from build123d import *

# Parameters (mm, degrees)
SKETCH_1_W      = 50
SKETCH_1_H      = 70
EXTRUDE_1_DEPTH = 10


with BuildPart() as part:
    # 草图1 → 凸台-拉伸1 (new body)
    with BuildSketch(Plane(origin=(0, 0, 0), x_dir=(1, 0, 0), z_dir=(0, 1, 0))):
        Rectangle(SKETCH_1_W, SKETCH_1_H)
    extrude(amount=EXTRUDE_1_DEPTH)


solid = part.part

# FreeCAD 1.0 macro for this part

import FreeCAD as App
import Part
import Sketcher

V = App.Vector

doc = App.newDocument("Part")
body = doc.addObject("PartDesign::Body", "Body")

# Sketch on XZ plane
sketch1 = body.newObject("Sketcher::SketchObject", "Sketch")
sketch1.AttachmentSupport = (doc.getObject("XZ_Plane"), [""])
sketch1.MapMode = "FlatFace"
sketch1.addGeometry(Part.LineSegment(V(-25, -35, 0), V(-25, 35, 0)), False)
sketch1.addGeometry(Part.LineSegment(V(-25, 35, 0), V(25, 35, 0)), False)
sketch1.addGeometry(Part.LineSegment(V(25, 35, 0), V(25, -35, 0)), False)
sketch1.addGeometry(Part.LineSegment(V(25, -35, 0), V(-25, -35, 0)), False)
sketch1.addConstraint(Sketcher.Constraint("Coincident", 0, 2, 1, 1))
sketch1.addConstraint(Sketcher.Constraint("Coincident", 1, 2, 2, 1))
sketch1.addConstraint(Sketcher.Constraint("Coincident", 2, 2, 3, 1))
sketch1.addConstraint(Sketcher.Constraint("Coincident", 3, 2, 0, 1))
sketch1.addConstraint(Sketcher.Constraint("Vertical", 0))
sketch1.addConstraint(Sketcher.Constraint("Horizontal", 1))
sketch1.addConstraint(Sketcher.Constraint("Vertical", 2))
sketch1.addConstraint(Sketcher.Constraint("Horizontal", 3))
sketch1.addConstraint(Sketcher.Constraint("Symmetric", 0, 2, 2, 2, -1, 1))
sketch1.addConstraint(Sketcher.Constraint("DistanceX", 1, 1, 1, 2, 50.0))
sketch1.addConstraint(Sketcher.Constraint("DistanceY", 0, 1, 0, 2, 70.0))
pad1 = body.newObject("PartDesign::Pad", "Pad")
pad1.Profile = sketch1
pad1.Length = 10
pad1.Reversed = True

doc.recompute()
